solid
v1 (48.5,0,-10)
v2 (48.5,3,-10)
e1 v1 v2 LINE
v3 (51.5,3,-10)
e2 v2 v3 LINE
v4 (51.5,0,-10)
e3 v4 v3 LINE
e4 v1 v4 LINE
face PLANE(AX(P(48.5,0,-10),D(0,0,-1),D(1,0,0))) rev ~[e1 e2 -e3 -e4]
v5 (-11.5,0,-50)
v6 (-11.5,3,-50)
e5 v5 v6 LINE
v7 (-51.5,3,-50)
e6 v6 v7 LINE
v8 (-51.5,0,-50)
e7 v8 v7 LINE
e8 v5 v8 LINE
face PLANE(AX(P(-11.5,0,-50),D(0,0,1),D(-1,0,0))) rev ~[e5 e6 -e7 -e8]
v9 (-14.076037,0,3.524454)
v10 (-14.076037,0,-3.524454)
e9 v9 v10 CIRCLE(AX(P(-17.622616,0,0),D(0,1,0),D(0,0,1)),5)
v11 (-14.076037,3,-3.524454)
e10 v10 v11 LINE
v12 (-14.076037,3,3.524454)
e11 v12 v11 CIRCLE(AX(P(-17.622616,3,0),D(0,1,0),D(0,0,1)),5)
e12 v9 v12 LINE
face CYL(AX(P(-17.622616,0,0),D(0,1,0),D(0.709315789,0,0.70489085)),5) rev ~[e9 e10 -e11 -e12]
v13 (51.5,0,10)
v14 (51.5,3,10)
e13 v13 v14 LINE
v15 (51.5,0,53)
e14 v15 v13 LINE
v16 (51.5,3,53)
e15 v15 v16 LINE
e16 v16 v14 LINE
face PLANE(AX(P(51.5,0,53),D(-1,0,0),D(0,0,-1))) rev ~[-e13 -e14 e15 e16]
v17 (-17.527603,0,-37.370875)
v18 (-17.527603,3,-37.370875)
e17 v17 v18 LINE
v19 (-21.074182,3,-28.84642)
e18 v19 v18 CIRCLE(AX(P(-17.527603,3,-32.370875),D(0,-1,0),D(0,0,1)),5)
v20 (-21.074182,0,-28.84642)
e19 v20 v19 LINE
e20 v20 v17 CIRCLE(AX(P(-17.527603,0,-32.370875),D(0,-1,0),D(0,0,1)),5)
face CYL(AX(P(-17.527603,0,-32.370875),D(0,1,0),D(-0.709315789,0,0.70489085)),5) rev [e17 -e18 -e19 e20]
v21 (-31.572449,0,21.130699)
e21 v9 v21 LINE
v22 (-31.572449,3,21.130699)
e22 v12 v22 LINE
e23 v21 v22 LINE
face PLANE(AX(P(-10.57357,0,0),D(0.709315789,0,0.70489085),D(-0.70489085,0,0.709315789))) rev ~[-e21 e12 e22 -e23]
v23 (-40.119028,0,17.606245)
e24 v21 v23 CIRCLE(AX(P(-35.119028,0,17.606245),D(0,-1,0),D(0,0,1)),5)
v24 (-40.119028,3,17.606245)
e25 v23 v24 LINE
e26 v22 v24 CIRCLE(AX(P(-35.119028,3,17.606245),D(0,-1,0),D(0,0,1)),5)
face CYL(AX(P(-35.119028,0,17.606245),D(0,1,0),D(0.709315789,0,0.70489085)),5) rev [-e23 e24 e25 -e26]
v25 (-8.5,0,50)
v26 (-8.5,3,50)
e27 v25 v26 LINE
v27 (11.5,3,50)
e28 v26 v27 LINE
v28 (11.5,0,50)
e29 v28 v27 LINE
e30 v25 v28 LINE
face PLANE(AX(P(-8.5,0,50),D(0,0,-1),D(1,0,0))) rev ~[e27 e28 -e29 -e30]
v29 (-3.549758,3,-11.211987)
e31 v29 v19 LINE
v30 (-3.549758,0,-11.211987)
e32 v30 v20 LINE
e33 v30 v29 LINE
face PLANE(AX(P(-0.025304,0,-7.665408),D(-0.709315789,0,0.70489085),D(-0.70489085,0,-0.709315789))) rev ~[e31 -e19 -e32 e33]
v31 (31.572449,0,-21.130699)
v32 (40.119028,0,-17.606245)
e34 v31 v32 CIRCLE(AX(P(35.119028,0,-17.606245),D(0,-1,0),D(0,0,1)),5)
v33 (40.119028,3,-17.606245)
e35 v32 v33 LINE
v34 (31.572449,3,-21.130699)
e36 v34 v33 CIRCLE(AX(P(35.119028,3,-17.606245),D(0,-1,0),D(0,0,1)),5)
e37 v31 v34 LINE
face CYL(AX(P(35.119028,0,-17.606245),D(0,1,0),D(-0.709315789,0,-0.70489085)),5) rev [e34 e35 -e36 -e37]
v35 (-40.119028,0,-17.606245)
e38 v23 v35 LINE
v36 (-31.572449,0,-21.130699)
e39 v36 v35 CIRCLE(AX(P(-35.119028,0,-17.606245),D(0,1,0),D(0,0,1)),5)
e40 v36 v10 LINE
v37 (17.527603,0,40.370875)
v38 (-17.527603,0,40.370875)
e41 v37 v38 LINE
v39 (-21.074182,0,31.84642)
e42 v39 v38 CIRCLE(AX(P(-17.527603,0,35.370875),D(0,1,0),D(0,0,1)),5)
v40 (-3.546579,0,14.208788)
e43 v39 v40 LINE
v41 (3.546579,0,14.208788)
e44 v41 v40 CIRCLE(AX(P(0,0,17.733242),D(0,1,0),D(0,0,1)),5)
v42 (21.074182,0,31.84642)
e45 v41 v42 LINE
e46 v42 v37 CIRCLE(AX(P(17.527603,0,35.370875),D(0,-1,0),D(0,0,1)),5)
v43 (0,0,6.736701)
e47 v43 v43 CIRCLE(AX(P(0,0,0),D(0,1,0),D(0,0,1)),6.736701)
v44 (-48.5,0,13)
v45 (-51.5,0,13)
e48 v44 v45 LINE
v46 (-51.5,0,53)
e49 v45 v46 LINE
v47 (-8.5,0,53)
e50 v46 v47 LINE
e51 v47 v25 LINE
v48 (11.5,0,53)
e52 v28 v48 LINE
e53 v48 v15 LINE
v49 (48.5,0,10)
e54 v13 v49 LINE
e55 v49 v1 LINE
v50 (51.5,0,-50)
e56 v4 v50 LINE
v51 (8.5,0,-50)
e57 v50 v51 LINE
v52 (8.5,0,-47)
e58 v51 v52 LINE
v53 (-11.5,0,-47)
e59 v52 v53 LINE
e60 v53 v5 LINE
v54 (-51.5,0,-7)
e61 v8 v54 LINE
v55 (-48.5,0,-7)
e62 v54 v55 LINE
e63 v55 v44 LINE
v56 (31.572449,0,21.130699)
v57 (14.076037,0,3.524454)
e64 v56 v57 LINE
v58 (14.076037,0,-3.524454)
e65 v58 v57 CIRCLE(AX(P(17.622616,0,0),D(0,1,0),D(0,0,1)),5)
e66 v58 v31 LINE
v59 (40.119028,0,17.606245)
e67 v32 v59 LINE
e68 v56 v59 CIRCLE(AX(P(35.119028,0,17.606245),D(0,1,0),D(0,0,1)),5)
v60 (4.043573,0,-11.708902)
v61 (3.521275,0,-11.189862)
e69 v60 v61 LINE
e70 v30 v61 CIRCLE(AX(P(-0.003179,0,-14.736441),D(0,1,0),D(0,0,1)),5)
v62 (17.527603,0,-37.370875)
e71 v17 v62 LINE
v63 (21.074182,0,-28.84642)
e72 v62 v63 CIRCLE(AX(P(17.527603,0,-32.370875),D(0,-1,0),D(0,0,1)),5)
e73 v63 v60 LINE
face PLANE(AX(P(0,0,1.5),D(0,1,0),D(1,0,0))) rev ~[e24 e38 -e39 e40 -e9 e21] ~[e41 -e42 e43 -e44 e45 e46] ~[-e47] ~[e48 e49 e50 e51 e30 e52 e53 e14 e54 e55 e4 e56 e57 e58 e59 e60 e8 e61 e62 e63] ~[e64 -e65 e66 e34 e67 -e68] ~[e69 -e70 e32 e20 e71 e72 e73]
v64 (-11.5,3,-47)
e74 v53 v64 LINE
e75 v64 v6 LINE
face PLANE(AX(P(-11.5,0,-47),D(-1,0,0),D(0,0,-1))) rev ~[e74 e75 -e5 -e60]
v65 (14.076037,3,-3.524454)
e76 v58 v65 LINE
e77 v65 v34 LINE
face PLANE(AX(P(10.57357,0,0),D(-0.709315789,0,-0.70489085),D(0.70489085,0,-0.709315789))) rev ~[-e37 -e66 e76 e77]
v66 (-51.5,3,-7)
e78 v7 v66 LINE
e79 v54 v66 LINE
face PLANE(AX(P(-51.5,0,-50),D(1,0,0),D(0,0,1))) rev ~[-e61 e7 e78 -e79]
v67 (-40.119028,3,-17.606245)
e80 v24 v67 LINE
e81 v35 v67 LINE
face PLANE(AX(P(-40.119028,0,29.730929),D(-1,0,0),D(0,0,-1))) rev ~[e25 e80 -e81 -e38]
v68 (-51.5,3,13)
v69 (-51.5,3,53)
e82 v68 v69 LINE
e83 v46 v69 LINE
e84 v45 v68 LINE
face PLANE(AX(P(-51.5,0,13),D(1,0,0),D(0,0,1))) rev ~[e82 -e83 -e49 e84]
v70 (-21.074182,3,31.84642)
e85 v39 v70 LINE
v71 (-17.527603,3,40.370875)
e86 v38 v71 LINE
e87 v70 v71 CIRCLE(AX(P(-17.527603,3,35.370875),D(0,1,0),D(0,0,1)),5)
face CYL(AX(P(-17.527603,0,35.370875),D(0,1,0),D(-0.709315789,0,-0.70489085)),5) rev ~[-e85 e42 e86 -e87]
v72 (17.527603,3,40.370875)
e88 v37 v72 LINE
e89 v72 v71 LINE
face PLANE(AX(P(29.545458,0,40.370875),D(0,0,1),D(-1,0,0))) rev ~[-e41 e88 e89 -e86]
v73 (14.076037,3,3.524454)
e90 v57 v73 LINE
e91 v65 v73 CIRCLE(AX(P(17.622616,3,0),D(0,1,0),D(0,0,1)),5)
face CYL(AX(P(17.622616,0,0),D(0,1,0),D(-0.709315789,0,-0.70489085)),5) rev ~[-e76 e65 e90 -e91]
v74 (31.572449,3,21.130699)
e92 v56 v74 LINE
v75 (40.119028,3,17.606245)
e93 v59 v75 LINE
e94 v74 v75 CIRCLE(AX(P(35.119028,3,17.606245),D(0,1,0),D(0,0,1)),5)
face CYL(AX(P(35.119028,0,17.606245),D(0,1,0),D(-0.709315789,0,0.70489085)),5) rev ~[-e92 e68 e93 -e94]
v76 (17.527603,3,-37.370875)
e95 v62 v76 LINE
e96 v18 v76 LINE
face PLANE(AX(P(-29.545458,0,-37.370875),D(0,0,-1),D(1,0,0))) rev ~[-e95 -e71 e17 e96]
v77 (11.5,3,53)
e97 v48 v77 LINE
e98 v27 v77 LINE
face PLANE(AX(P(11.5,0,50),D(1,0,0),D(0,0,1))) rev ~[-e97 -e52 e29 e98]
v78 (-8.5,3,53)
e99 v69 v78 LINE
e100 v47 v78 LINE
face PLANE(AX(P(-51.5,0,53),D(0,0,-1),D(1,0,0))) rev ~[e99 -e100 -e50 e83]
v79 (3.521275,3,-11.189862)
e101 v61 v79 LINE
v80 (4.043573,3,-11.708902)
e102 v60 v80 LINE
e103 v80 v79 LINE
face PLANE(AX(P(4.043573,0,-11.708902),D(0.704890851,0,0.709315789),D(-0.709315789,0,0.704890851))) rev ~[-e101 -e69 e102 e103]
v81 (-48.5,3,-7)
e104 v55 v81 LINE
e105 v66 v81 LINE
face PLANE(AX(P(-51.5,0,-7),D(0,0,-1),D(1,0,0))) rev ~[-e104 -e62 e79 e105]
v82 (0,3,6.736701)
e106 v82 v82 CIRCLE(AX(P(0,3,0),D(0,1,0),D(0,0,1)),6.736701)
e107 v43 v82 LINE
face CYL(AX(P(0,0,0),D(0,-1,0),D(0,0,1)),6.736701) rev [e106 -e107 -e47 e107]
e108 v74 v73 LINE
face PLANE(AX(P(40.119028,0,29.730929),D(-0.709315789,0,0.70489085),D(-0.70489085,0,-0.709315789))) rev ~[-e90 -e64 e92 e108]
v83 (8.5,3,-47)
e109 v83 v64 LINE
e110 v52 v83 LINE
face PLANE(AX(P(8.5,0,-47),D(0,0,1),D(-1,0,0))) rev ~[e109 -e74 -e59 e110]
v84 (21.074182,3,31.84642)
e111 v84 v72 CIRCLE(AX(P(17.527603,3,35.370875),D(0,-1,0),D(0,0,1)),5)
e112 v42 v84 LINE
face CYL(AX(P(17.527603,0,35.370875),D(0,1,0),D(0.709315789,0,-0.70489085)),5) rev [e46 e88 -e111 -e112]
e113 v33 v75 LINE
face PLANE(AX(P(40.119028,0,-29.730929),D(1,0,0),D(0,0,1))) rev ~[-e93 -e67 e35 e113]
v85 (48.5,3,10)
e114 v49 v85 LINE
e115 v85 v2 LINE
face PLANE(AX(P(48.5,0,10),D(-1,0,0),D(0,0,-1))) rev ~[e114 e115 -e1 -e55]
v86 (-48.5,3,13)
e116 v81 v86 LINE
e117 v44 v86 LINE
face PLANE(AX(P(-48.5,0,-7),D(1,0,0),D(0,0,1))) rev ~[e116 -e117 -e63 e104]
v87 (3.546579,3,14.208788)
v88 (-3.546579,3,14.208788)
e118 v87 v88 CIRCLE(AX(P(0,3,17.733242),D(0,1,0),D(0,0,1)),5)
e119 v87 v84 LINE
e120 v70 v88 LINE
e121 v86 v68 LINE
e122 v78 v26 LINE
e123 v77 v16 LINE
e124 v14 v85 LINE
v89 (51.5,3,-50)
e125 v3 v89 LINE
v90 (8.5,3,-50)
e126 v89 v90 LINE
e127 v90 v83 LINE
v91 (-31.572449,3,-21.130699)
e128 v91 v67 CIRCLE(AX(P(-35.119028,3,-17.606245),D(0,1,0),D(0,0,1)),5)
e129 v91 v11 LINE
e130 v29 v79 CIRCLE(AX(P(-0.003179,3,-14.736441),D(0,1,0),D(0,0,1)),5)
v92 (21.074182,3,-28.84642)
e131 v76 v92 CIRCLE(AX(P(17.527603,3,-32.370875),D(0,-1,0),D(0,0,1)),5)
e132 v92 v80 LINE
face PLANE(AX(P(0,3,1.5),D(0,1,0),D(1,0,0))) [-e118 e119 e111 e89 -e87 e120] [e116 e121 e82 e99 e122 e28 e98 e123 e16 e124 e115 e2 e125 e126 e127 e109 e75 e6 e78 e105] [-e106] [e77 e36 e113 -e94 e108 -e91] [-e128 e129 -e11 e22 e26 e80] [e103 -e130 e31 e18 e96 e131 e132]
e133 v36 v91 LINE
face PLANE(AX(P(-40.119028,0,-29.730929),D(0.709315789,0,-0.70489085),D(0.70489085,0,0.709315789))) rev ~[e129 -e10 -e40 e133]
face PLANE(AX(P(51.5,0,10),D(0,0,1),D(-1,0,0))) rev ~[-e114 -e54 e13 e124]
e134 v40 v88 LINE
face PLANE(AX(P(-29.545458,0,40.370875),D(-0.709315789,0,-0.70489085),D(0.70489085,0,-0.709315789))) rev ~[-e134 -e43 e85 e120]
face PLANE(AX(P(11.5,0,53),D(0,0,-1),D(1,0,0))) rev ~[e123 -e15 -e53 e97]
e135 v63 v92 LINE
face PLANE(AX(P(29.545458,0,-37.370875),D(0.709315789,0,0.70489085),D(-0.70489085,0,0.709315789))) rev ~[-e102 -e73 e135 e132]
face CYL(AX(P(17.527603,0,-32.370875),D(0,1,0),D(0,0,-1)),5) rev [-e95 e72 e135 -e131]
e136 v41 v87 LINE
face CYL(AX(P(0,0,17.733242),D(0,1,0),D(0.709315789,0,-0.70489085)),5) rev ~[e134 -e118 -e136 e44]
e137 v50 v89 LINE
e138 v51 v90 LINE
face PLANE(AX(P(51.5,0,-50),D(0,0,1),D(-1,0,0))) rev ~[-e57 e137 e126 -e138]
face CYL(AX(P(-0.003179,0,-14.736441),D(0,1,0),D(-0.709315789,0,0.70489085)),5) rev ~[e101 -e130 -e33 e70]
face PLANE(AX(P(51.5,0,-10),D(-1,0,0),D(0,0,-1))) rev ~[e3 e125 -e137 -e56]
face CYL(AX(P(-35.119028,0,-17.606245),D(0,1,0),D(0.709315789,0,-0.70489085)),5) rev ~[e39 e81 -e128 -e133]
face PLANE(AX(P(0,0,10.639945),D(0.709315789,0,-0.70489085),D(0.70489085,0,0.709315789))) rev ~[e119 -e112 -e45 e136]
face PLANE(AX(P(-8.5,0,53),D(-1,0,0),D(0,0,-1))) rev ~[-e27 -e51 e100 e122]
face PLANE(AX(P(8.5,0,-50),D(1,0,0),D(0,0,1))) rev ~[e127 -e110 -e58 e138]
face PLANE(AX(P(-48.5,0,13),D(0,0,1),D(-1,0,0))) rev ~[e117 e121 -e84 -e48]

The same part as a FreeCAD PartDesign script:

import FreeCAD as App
import Part
import Sketcher

V = App.Vector
Q = App.Units.Quantity


def edges_at(feature, points):
    """Names of the edges that pass closest to the given points."""
    edges = feature.Shape.Edges
    near = lambda p: min(range(len(edges)), key=lambda i: edges[i].distToShape(Part.Vertex(*p))[0])
    return sorted({f"Edge{near(p) + 1}" for p in points})

doc = App.newDocument("Part")
params = doc.addObject("Spreadsheet::Sheet", "Params")
for row, (alias, value) in enumerate([
    ("sketch1_width", "43 mm"),
    ("sketch1_width2", "20 mm"),
    ("sketch1_width3", "40 mm"),
    ("pad1_length", "3 mm"),
    ("fillet_radius", "5 mm"),
    ("fillet2_radius", "5 mm"),
], start=1):
    params.set(f"A{row}", alias)
    params.set(f"B{row}", "=" + value)
    params.setAlias(f"B{row}", alias)

body = doc.addObject("PartDesign::Body", "Body")

# Sketch on XZ plane
sketch1 = body.newObject("Sketcher::SketchObject", "Sketch")
sketch1.AttachmentSupport = (doc.getObject("XZ_Plane"), [""])
sketch1.MapMode = "FlatFace"
sketch1.addGeometry([
    Part.LineSegment(V(-51.5, 13, 0), V(-51.5, 53, 0)),  # 0
    Part.LineSegment(V(-51.5, 53, 0), V(-8.5, 53, 0)),  # 1
    Part.LineSegment(V(-8.5, 53, 0), V(-8.5, 50, 0)),  # 2
    Part.LineSegment(V(-8.5, 50, 0), V(11.5, 50, 0)),  # 3
    Part.LineSegment(V(11.5, 50, 0), V(11.5, 53, 0)),  # 4
    Part.LineSegment(V(11.5, 53, 0), V(51.5, 53, 0)),  # 5
    Part.LineSegment(V(51.5, 53, 0), V(51.5, 10, 0)),  # 6
    Part.LineSegment(V(51.5, 10, 0), V(48.5, 10, 0)),  # 7
    Part.LineSegment(V(48.5, 10, 0), V(48.5, -10, 0)),  # 8
    Part.LineSegment(V(48.5, -10, 0), V(51.5, -10, 0)),  # 9
    Part.LineSegment(V(51.5, -10, 0), V(51.5, -50, 0)),  # 10
    Part.LineSegment(V(51.5, -50, 0), V(8.5, -50, 0)),  # 11
    Part.LineSegment(V(8.5, -50, 0), V(8.5, -47, 0)),  # 12
    Part.LineSegment(V(8.5, -47, 0), V(-11.5, -47, 0)),  # 13
    Part.LineSegment(V(-11.5, -47, 0), V(-11.5, -50, 0)),  # 14
    Part.LineSegment(V(-11.5, -50, 0), V(-51.5, -50, 0)),  # 15
    Part.LineSegment(V(-51.5, -50, 0), V(-51.5, -7, 0)),  # 16
    Part.LineSegment(V(-51.5, -7, 0), V(-48.5, -7, 0)),  # 17
    Part.LineSegment(V(-48.5, -7, 0), V(-48.5, 13, 0)),  # 18
    Part.LineSegment(V(-48.5, 13, 0), V(-51.5, 13, 0)),  # 19
    Part.LineSegment(V(0, 10.6, 0), V(29.5, 40.4, 0)),  # 20
    Part.LineSegment(V(29.5, 40.4, 0), V(-29.5, 40.4, 0)),  # 21
    Part.LineSegment(V(-29.5, 40.4, 0), V(0, 10.6, 0)),  # 22
    Part.LineSegment(V(-10.6, 0, 0), V(-40.1, 29.7, 0)),  # 23
    Part.LineSegment(V(-40.1, 29.7, 0), V(-40.1, -29.7, 0)),  # 24
    Part.LineSegment(V(-40.1, -29.7, 0), V(-10.6, 0, 0)),  # 25
    Part.Circle(V(0, 0, 0), V(0, 0, 1), 6.7),  # 26
    Part.LineSegment(V(10.6, 0, 0), V(40.1, -29.7, 0)),  # 27
    Part.LineSegment(V(40.1, -29.7, 0), V(40.1, 29.7, 0)),  # 28
    Part.LineSegment(V(40.1, 29.7, 0), V(10.6, 0, 0)),  # 29
    Part.LineSegment(V(0, -7.7, 0), V(-29.5, -37.4, 0)),  # 30
    Part.LineSegment(V(-29.5, -37.4, 0), V(29.5, -37.4, 0)),  # 31
    Part.LineSegment(V(29.5, -37.4, 0), V(4, -11.7, 0)),  # 32
    Part.LineSegment(V(4, -11.7, 0), V(0, -7.7, 0)),  # 33
], False)
sketch1.addConstraint([
    Sketcher.Constraint("Coincident", 0, 2, 1, 1),
    Sketcher.Constraint("Coincident", 1, 2, 2, 1),
    Sketcher.Constraint("Coincident", 2, 2, 3, 1),
    Sketcher.Constraint("Coincident", 3, 2, 4, 1),
    Sketcher.Constraint("Coincident", 4, 2, 5, 1),
    Sketcher.Constraint("Coincident", 5, 2, 6, 1),
    Sketcher.Constraint("Coincident", 6, 2, 7, 1),
    Sketcher.Constraint("Coincident", 7, 2, 8, 1),
    Sketcher.Constraint("Coincident", 8, 2, 9, 1),
    Sketcher.Constraint("Coincident", 9, 2, 10, 1),
    Sketcher.Constraint("Coincident", 10, 2, 11, 1),
    Sketcher.Constraint("Coincident", 11, 2, 12, 1),
    Sketcher.Constraint("Coincident", 12, 2, 13, 1),
    Sketcher.Constraint("Coincident", 13, 2, 14, 1),
    Sketcher.Constraint("Coincident", 14, 2, 15, 1),
    Sketcher.Constraint("Coincident", 15, 2, 16, 1),
    Sketcher.Constraint("Coincident", 16, 2, 17, 1),
    Sketcher.Constraint("Coincident", 17, 2, 18, 1),
    Sketcher.Constraint("Coincident", 18, 2, 19, 1),
    Sketcher.Constraint("Coincident", 19, 2, 0, 1),
    Sketcher.Constraint("Coincident", 20, 2, 21, 1),
    Sketcher.Constraint("Coincident", 21, 2, 22, 1),
    Sketcher.Constraint("Coincident", 22, 2, 20, 1),
    Sketcher.Constraint("Coincident", 23, 2, 24, 1),
    Sketcher.Constraint("Coincident", 24, 2, 25, 1),
    Sketcher.Constraint("Coincident", 25, 2, 23, 1),
    Sketcher.Constraint("Coincident", 27, 2, 28, 1),
    Sketcher.Constraint("Coincident", 28, 2, 29, 1),
    Sketcher.Constraint("Coincident", 29, 2, 27, 1),
    Sketcher.Constraint("Coincident", 30, 2, 31, 1),
    Sketcher.Constraint("Coincident", 31, 2, 32, 1),
    Sketcher.Constraint("Coincident", 32, 2, 33, 1),
    Sketcher.Constraint("Coincident", 33, 2, 30, 1),
    Sketcher.Constraint("Vertical", 0),
    Sketcher.Constraint("Horizontal", 1),
    Sketcher.Constraint("Vertical", 2),
    Sketcher.Constraint("Horizontal", 3),
    Sketcher.Constraint("Vertical", 4),
    Sketcher.Constraint("Horizontal", 5),
    Sketcher.Constraint("Vertical", 6),
    Sketcher.Constraint("Horizontal", 7),
    Sketcher.Constraint("Vertical", 8),
    Sketcher.Constraint("Horizontal", 9),
    Sketcher.Constraint("Vertical", 10),
    Sketcher.Constraint("Horizontal", 11),
    Sketcher.Constraint("Vertical", 12),
    Sketcher.Constraint("Horizontal", 13),
    Sketcher.Constraint("Vertical", 14),
    Sketcher.Constraint("Horizontal", 15),
    Sketcher.Constraint("Vertical", 16),
    Sketcher.Constraint("Horizontal", 17),
    Sketcher.Constraint("Vertical", 18),
    Sketcher.Constraint("Horizontal", 19),
    Sketcher.Constraint("Horizontal", 21),
    Sketcher.Constraint("Vertical", 24),
    Sketcher.Constraint("Vertical", 28),
    Sketcher.Constraint("Horizontal", 31),
    Sketcher.Constraint("Coincident", 26, 3, -1, 1),
    Sketcher.Constraint("Symmetric", 2, 2, 11, 2, -1, 1),
    Sketcher.Constraint("Symmetric", 3, 2, 14, 2, -1, 1),
    Sketcher.Constraint("Symmetric", 23, 2, 27, 2, -1, 1),
    Sketcher.Constraint("Symmetric", 25, 2, 29, 2, -1, 1),
    Sketcher.Constraint("Symmetric", 0, 2, 5, 2, -2),
    Sketcher.Constraint("Symmetric", 6, 2, 9, 2, -1),
    Sketcher.Constraint("PointOnObject", 22, 2, -2),
    Sketcher.Constraint("PointOnObject", 25, 2, -1),
    Sketcher.Constraint("Parallel", 22, 23),
    Sketcher.Constraint("Parallel", 20, 25),
    Sketcher.Constraint("Parallel", 25, 29),
    Sketcher.Constraint("Parallel", 29, 30),
    Sketcher.Constraint("Parallel", 27, 32),
    Sketcher.Constraint("Perpendicular", 30, 33),
    Sketcher.Constraint("Horizontal", 24, 2, 27, 2),
    Sketcher.Constraint("Vertical", 0, 2, 15, 2),
    Sketcher.Constraint("Vertical", 21, 2, 30, 2),
    Sketcher.Constraint("Vertical", 20, 2, 31, 2),
    Sketcher.Constraint("Equal", 9, 17),
    Sketcher.Constraint("Equal", 15, 0),
    Sketcher.Constraint("Equal", 19, 2),
    Sketcher.Constraint("Equal", 11, 6),
    Sketcher.Constraint("Equal", 13, 8),
    Sketcher.Constraint("Equal", 0, 10),
    Sketcher.Constraint("Equal", 4, 12),
    Sketcher.Constraint("Equal", 6, 16),
    Sketcher.Constraint("Equal", 22, 23),
    Sketcher.Constraint("DistanceX", 1, 1, 1, 2, Q("43 mm")),
    Sketcher.Constraint("DistanceX", 3, 1, 3, 2, Q("20 mm")),
    Sketcher.Constraint("DistanceX", 5, 1, 5, 2, Q("40 mm")),
    Sketcher.Constraint("Diameter", 26, Q("13.473401 mm")),
    Sketcher.Constraint("DistanceY", 24, 2, 24, 1, Q("59.461859 mm")),
    Sketcher.Constraint("DistanceY", 32, 2, -1, 1, Q("11.708902 mm")),
    Sketcher.Constraint("Distance", 20, Q("41.914941 mm")),
    Sketcher.Constraint("Distance", 33, Q("5.736341 mm")),
    Sketcher.Constraint("DistanceX", 23, 2, -1, 1, Q("40.119028 mm")),
    Sketcher.Constraint("DistanceY", -1, 1, 20, 2, Q("40.370875 mm")),
])
sketch1.setExpression("Constraints[85]", "Params.sketch1_width")
sketch1.setExpression("Constraints[86]", "Params.sketch1_width2")
sketch1.setExpression("Constraints[87]", "Params.sketch1_width3")
pad1 = body.newObject("PartDesign::Pad", "Pad")
pad1.Profile = sketch1
pad1.setExpression("Length", "Params.pad1_length")
pad1.Reversed = True
doc.recompute()

fillet = body.newObject("PartDesign::Fillet", "Fillet")
fillet.Base = (pad1, edges_at(pad1, [
    (29.545, 1.5, 40.371),
    (-29.545, 1.5, 40.371),
    (-40.119, 1.5, -29.731),
    (-40.119, 1.5, 29.731),
    (29.545, 1.5, -37.371),
    (-29.545, 1.5, -37.371),
    (40.119, 1.5, 29.731),
    (40.119, 1.5, -29.731),
]))
fillet.setExpression("Radius", "Params.fillet_radius")
doc.recompute()

fillet2 = body.newObject("PartDesign::Fillet", "Fillet001")
fillet2.Base = (fillet, edges_at(fillet, [
    (0, 1.5, 10.64),
    (-10.574, 1.5, 0),
    (-0.025, 1.5, -7.665),
    (10.574, 1.5, 0),
]))
fillet2.setExpression("Radius", "Params.fillet2_radius")

doc.recompute()
